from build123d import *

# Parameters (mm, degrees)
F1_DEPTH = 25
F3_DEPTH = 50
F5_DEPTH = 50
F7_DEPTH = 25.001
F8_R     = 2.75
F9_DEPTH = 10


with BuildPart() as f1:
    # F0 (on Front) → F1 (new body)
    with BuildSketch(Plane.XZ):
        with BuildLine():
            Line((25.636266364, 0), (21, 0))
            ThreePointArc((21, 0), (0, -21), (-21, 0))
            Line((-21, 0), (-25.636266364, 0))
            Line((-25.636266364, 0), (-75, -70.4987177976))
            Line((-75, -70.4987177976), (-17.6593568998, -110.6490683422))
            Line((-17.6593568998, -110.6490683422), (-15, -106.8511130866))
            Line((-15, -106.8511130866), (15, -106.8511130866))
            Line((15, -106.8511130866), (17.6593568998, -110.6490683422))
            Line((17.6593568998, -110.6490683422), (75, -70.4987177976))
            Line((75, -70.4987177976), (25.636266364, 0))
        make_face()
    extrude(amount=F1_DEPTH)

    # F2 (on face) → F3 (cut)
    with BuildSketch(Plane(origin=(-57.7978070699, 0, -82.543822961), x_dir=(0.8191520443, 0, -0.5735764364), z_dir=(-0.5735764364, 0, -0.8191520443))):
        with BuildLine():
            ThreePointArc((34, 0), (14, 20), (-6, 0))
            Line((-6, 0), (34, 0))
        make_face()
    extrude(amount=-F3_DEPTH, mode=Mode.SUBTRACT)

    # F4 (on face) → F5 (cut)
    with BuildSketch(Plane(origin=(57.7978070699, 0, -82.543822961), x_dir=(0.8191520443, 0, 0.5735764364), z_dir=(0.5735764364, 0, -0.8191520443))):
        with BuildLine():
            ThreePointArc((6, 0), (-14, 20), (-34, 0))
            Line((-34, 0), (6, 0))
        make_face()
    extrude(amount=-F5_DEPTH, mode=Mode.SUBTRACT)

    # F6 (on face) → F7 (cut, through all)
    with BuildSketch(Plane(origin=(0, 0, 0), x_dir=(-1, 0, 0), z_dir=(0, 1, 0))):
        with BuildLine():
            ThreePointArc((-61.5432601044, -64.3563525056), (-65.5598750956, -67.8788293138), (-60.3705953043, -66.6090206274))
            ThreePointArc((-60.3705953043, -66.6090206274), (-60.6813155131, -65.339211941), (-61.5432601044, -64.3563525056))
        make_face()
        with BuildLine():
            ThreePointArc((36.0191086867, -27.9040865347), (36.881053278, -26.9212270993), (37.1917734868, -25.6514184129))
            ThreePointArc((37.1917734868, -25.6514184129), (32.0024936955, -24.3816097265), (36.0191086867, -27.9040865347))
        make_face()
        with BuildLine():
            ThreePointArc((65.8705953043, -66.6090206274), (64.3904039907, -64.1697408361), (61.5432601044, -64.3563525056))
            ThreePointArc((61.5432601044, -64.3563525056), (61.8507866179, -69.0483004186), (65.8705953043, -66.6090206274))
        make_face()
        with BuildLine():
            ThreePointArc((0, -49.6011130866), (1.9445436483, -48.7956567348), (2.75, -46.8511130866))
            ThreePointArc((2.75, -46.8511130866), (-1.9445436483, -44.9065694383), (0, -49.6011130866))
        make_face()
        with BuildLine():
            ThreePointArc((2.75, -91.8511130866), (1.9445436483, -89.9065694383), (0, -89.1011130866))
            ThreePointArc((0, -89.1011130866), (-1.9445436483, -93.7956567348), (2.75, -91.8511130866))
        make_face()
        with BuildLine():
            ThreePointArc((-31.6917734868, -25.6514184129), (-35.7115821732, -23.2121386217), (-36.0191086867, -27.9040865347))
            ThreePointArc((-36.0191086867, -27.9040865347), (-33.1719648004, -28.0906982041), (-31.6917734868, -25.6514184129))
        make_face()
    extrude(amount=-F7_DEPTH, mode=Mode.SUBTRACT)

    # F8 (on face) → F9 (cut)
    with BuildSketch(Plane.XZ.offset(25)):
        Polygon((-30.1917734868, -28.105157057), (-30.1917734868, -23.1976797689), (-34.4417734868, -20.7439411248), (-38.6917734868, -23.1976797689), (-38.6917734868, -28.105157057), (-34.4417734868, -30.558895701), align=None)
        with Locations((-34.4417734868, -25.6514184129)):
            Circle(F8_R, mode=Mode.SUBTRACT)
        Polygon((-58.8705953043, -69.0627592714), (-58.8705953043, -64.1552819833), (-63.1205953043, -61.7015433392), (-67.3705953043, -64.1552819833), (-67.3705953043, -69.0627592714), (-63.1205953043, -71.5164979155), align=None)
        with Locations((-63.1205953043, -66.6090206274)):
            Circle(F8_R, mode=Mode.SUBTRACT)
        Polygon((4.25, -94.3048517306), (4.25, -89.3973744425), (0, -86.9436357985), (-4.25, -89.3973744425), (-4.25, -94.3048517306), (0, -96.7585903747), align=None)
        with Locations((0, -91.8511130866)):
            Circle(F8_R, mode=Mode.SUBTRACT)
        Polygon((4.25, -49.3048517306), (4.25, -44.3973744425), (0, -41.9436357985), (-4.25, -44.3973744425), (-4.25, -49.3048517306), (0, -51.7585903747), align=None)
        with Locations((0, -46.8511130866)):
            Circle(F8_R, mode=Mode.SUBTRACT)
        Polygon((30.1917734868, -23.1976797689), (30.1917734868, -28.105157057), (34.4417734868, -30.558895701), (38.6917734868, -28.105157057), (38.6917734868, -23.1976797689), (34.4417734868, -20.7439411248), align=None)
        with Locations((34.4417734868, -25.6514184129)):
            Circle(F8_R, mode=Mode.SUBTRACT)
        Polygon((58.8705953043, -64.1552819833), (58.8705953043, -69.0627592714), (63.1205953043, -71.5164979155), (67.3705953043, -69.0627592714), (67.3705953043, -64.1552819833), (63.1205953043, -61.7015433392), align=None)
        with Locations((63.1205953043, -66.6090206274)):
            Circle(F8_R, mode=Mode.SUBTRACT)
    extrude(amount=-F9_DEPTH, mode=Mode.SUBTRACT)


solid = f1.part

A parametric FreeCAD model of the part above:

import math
import FreeCAD as App
import Part
import Sketcher

V = App.Vector
Q = App.Units.Quantity

doc = App.newDocument("Part")
body = doc.addObject("PartDesign::Body", "Body")

# Sketch on XZ plane
sketch1 = body.newObject("Sketcher::SketchObject", "Sketch")
sketch1.AttachmentSupport = (doc.getObject("XZ_Plane"), [""])
sketch1.MapMode = "FlatFace"
sketch1.addGeometry(Part.LineSegment(V(25.636266, 0, 0), V(21, 0, 0)), False)
sketch1.addGeometry(Part.ArcOfCircle(Part.Circle(V(0, 0, 0), V(0, 0, 1), 21), math.radians(180), math.radians(360)), False)
sketch1.addGeometry(Part.LineSegment(V(-21, 0, 0), V(-25.636266, 0, 0)), False)
sketch1.addGeometry(Part.LineSegment(V(-25.636266, 0, 0), V(-75, -70.498718, 0)), False)
sketch1.addGeometry(Part.LineSegment(V(-75, -70.498718, 0), V(-17.659357, -110.649068, 0)), False)
sketch1.addGeometry(Part.LineSegment(V(-17.659357, -110.649068, 0), V(-15, -106.851113, 0)), False)
sketch1.addGeometry(Part.LineSegment(V(-15, -106.851113, 0), V(15, -106.851113, 0)), False)
sketch1.addGeometry(Part.LineSegment(V(15, -106.851113, 0), V(17.659357, -110.649068, 0)), False)
sketch1.addGeometry(Part.LineSegment(V(17.659357, -110.649068, 0), V(75, -70.498718, 0)), False)
sketch1.addGeometry(Part.LineSegment(V(75, -70.498718, 0), V(25.636266, 0, 0)), False)
sketch1.addConstraint(Sketcher.Constraint("Coincident", 0, 2, 1, 2))
sketch1.addConstraint(Sketcher.Constraint("Coincident", 1, 1, 2, 1))
sketch1.addConstraint(Sketcher.Constraint("Coincident", 2, 2, 3, 1))
sketch1.addConstraint(Sketcher.Constraint("Coincident", 3, 2, 4, 1))
sketch1.addConstraint(Sketcher.Constraint("Coincident", 4, 2, 5, 1))
sketch1.addConstraint(Sketcher.Constraint("Coincident", 5, 2, 6, 1))
sketch1.addConstraint(Sketcher.Constraint("Coincident", 6, 2, 7, 1))
sketch1.addConstraint(Sketcher.Constraint("Coincident", 7, 2, 8, 1))
sketch1.addConstraint(Sketcher.Constraint("Coincident", 8, 2, 9, 1))
sketch1.addConstraint(Sketcher.Constraint("Coincident", 9, 2, 0, 1))
sketch1.addConstraint(Sketcher.Constraint("Horizontal", 0))
sketch1.addConstraint(Sketcher.Constraint("Horizontal", 2))
sketch1.addConstraint(Sketcher.Constraint("Horizontal", 6))
sketch1.addConstraint(Sketcher.Constraint("Coincident", 1, 3, -1, 1))
sketch1.addConstraint(Sketcher.Constraint("Symmetric", 2, 2, 9, 2, -1, 1))
sketch1.addConstraint(Sketcher.Constraint("Symmetric", 4, 2, 7, 2, -2))
sketch1.addConstraint(Sketcher.Constraint("Symmetric", 3, 2, 8, 2, -2))
sketch1.addConstraint(Sketcher.Constraint("PointOnObject", 0, 2, -1))
sketch1.addConstraint(Sketcher.Constraint("Perpendicular", 3, 4))
sketch1.addConstraint(Sketcher.Constraint("Perpendicular", 4, 5))
sketch1.addConstraint(Sketcher.Constraint("Perpendicular", 7, 8))
sketch1.addConstraint(Sketcher.Constraint("Radius", 1, 21.0))
sketch1.addConstraint(Sketcher.Constraint("DistanceX", 6, 1, 6, 2, 30.0))
sketch1.addConstraint(Sketcher.Constraint("Angle", 3, Q("-125 deg")))
sketch1.addConstraint(Sketcher.Constraint("Distance", 4, 70.0))
sketch1.addConstraint(Sketcher.Constraint("DistanceX", 3, 2, -1, 1, 75.0))
sketch1.addConstraint(Sketcher.Constraint("DistanceX", 0, 2, 0, 1, 4.636266))
pad1 = body.newObject("PartDesign::Pad", "Pad")
pad1.Profile = sketch1
pad1.Length = 25

# Sketch on an angled plane
sketch2 = body.newObject("Sketcher::SketchObject", "Sketch001")
sketch2.Placement = App.Placement(V(-57.797807, 0, -82.543823), App.Rotation(V(0.819152044, 0, -0.573576436), V(0, -0.999999999, 0), V(-0.573576436, 0, -0.819152044), "ZXY"))
sketch2.addGeometry(Part.ArcOfCircle(Part.Circle(V(14, 0, 0), V(0, 0, 1), 20), math.radians(0), math.radians(180)), False)
sketch2.addGeometry(Part.LineSegment(V(-6, 0, 0), V(34, 0, 0)), False)
sketch2.addConstraint(Sketcher.Constraint("Coincident", 0, 1, 1, 2))
sketch2.addConstraint(Sketcher.Constraint("Coincident", 1, 1, 0, 2))
sketch2.addConstraint(Sketcher.Constraint("Horizontal", 1))
sketch2.addConstraint(Sketcher.Constraint("PointOnObject", 0, 3, -1))
sketch2.addConstraint(Sketcher.Constraint("PointOnObject", 0, 1, -1))
sketch2.addConstraint(Sketcher.Constraint("Radius", 0, 20.0))
sketch2.addConstraint(Sketcher.Constraint("DistanceX", -1, 1, 0, 3, 14.0))
pocket1 = body.newObject("PartDesign::Pocket", "Pocket")
pocket1.Profile = sketch2
pocket1.Length = 50

# Sketch on an angled plane
sketch3 = body.newObject("Sketcher::SketchObject", "Sketch002")
sketch3.Placement = App.Placement(V(57.797807, 0, -82.543823), App.Rotation(V(0.819152044, 0, 0.573576436), V(0, -0.999999999, 0), V(0.573576436, 0, -0.819152044), "ZXY"))
sketch3.addGeometry(Part.ArcOfCircle(Part.Circle(V(-14, 0, 0), V(0, 0, 1), 20), math.radians(0), math.radians(180)), False)
sketch3.addGeometry(Part.LineSegment(V(-34, 0, 0), V(6, 0, 0)), False)
sketch3.addConstraint(Sketcher.Constraint("Coincident", 0, 1, 1, 2))
sketch3.addConstraint(Sketcher.Constraint("Coincident", 1, 1, 0, 2))
sketch3.addConstraint(Sketcher.Constraint("Horizontal", 1))
sketch3.addConstraint(Sketcher.Constraint("PointOnObject", 0, 3, -1))
sketch3.addConstraint(Sketcher.Constraint("PointOnObject", 0, 1, -1))
sketch3.addConstraint(Sketcher.Constraint("Radius", 0, 20.0))
sketch3.addConstraint(Sketcher.Constraint("DistanceX", 0, 3, -1, 1, 14.0))
pocket2 = body.newObject("PartDesign::Pocket", "Pocket001")
pocket2.Profile = sketch3
pocket2.Length = 50

# Sketch on XZ plane
sketch4 = body.newObject("Sketcher::SketchObject", "Sketch003")
sketch4.AttachmentSupport = (doc.getObject("XZ_Plane"), [""])
sketch4.MapMode = "FlatFace"
sketch4.addGeometry(Part.ArcOfCircle(Part.Circle(V(63.120595, -66.609021, 0), V(0, 0, 1), 2.75), math.radians(180), math.radians(485)), False)
sketch4.addGeometry(Part.ArcOfCircle(Part.Circle(V(63.120595, -66.609021, 0), V(0, 0, 1), 2.75), math.radians(125), math.radians(180)), False)
sketch4.addGeometry(Part.ArcOfCircle(Part.Circle(V(-34.441773, -25.651418, 0), V(0, 0, 1), 2.75), math.radians(180), math.radians(235)), False)
sketch4.addGeometry(Part.ArcOfCircle(Part.Circle(V(-34.441773, -25.651418, 0), V(0, 0, 1), 2.75), math.radians(-125), math.radians(180)), False)
sketch4.addGeometry(Part.ArcOfCircle(Part.Circle(V(-63.120595, -66.609021, 0), V(0, 0, 1), 2.75), math.radians(55), math.radians(180)), False)
sketch4.addGeometry(Part.ArcOfCircle(Part.Circle(V(-63.120595, -66.609021, 0), V(0, 0, 1), 2.75), math.radians(180), math.radians(415)), False)
sketch4.addGeometry(Part.ArcOfCircle(Part.Circle(V(0, -46.851113, 0), V(0, 0, 1), 2.75), math.radians(180), math.radians(270)), False)
sketch4.addGeometry(Part.ArcOfCircle(Part.Circle(V(0, -46.851113, 0), V(0, 0, 1), 2.75), math.radians(-90), math.radians(180)), False)
sketch4.addGeometry(Part.ArcOfCircle(Part.Circle(V(0, -91.851113, 0), V(0, 0, 1), 2.75), math.radians(90), math.radians(180)), False)
sketch4.addGeometry(Part.ArcOfCircle(Part.Circle(V(0, -91.851113, 0), V(0, 0, 1), 2.75), math.radians(180), math.radians(450)), False)
sketch4.addGeometry(Part.ArcOfCircle(Part.Circle(V(34.441773, -25.651418, 0), V(0, 0, 1), 2.75), math.radians(-55), math.radians(180)), False)
sketch4.addGeometry(Part.ArcOfCircle(Part.Circle(V(34.441773, -25.651418, 0), V(0, 0, 1), 2.75), math.radians(180), math.radians(305)), False)
sketch4.addConstraint(Sketcher.Constraint("Tangent", 0, 1, 1, 2))
sketch4.addConstraint(Sketcher.Constraint("Coincident", 1, 1, 0, 2))
sketch4.addConstraint(Sketcher.Constraint("Tangent", 2, 1, 3, 2))
sketch4.addConstraint(Sketcher.Constraint("Coincident", 3, 1, 2, 2))
sketch4.addConstraint(Sketcher.Constraint("Tangent", 4, 1, 5, 2))
sketch4.addConstraint(Sketcher.Constraint("Coincident", 5, 1, 4, 2))
sketch4.addConstraint(Sketcher.Constraint("Tangent", 6, 1, 7, 2))
sketch4.addConstraint(Sketcher.Constraint("Coincident", 7, 1, 6, 2))
sketch4.addConstraint(Sketcher.Constraint("Tangent", 8, 1, 9, 2))
sketch4.addConstraint(Sketcher.Constraint("Coincident", 9, 1, 8, 2))
sketch4.addConstraint(Sketcher.Constraint("Tangent", 10, 1, 11, 2))
sketch4.addConstraint(Sketcher.Constraint("Coincident", 11, 1, 10, 2))
sketch4.addConstraint(Sketcher.Constraint("Equal", 1, 2))
sketch4.addConstraint(Sketcher.Constraint("Equal", 3, 4))
sketch4.addConstraint(Sketcher.Constraint("Equal", 5, 6))
sketch4.addConstraint(Sketcher.Constraint("Equal", 7, 8))
sketch4.addConstraint(Sketcher.Constraint("Equal", 9, 10))
sketch4.addConstraint(Sketcher.Constraint("Symmetric", 0, 3, 4, 3, -2))
sketch4.addConstraint(Sketcher.Constraint("Symmetric", 2, 3, 10, 3, -2))
sketch4.addConstraint(Sketcher.Constraint("PointOnObject", 6, 3, -2))
sketch4.addConstraint(Sketcher.Constraint("PointOnObject", 8, 3, -2))
sketch4.addConstraint(Sketcher.Constraint("PointOnObject", 7, 1, -2))
sketch4.addConstraint(Sketcher.Constraint("PointOnObject", 8, 1, -2))
sketch4.addConstraint(Sketcher.Constraint("Horizontal", 5, 3, 0, 1))
sketch4.addConstraint(Sketcher.Constraint("Horizontal", 11, 3, 2, 1))
sketch4.addConstraint(Sketcher.Constraint("Horizontal", 1, 1, 4, 1))
sketch4.addConstraint(Sketcher.Constraint("Horizontal", 0, 1, 5, 1))
sketch4.addConstraint(Sketcher.Constraint("Horizontal", 7, 3, 6, 1))
sketch4.addConstraint(Sketcher.Constraint("Horizontal", 8, 3, 9, 1))
sketch4.addConstraint(Sketcher.Constraint("Horizontal", 3, 1, 10, 1))
sketch4.addConstraint(Sketcher.Constraint("Horizontal", 2, 1, 11, 1))
sketch4.addConstraint(Sketcher.Constraint("Radius", 0, 2.75))
sketch4.addConstraint(Sketcher.Constraint("DistanceY", 8, 3, 6, 3, 45.0))
sketch4.addConstraint(Sketcher.Constraint("DistanceY", 0, 3, -1, 1, 66.609021))
sketch4.addConstraint(Sketcher.Constraint("DistanceY", 2, 3, -1, 1, 25.651418))
sketch4.addConstraint(Sketcher.Constraint("DistanceX", -1, 1, 1, 1, 61.54326))
sketch4.addConstraint(Sketcher.Constraint("DistanceX", 3, 1, -1, 1, 36.019109))
sketch4.addConstraint(Sketcher.Constraint("DistanceX", 2, 3, 0, 3, 97.562369))
sketch4.addConstraint(Sketcher.Constraint("DistanceX", 4, 3, 2, 3, 28.678822))
sketch4.addConstraint(Sketcher.Constraint("DistanceY", 6, 3, -1, 1, 46.851113))
pocket3 = body.newObject("PartDesign::Pocket", "Pocket002")
pocket3.Profile = sketch4
pocket3.Type = "ThroughAll"
pocket3.Reversed = True

# Sketch on XZ plane
sketch5 = body.newObject("Sketcher::SketchObject", "Sketch004")
sketch5.AttachmentSupport = (doc.getObject("XZ_Plane"), [""])
sketch5.MapMode = "FlatFace"
sketch5.AttachmentOffset = App.Placement(V(0, 0, 25), App.Rotation())
sketch5.addGeometry(Part.LineSegment(V(-30.191773, -28.105157, 0), V(-30.191773, -23.19768, 0)), False)
sketch5.addGeometry(Part.LineSegment(V(-30.191773, -23.19768, 0), V(-34.441773, -20.743941, 0)), False)
sketch5.addGeometry(Part.LineSegment(V(-34.441773, -20.743941, 0), V(-38.691773, -23.19768, 0)), False)
sketch5.addGeometry(Part.LineSegment(V(-38.691773, -23.19768, 0), V(-38.691773, -28.105157, 0)), False)
sketch5.addGeometry(Part.LineSegment(V(-38.691773, -28.105157, 0), V(-34.441773, -30.558896, 0)), False)
sketch5.addGeometry(Part.LineSegment(V(-34.441773, -30.558896, 0), V(-30.191773, -28.105157, 0)), False)
sketch5.addGeometry(Part.Circle(V(-34.441773, -25.651418, 0), V(0, 0, 1), 2.75), False)
sketch5.addGeometry(Part.LineSegment(V(-58.870595, -69.062759, 0), V(-58.870595, -64.155282, 0)), False)
sketch5.addGeometry(Part.LineSegment(V(-58.870595, -64.155282, 0), V(-63.120595, -61.701543, 0)), False)
sketch5.addGeometry(Part.LineSegment(V(-63.120595, -61.701543, 0), V(-67.370595, -64.155282, 0)), False)
sketch5.addGeometry(Part.LineSegment(V(-67.370595, -64.155282, 0), V(-67.370595, -69.062759, 0)), False)
sketch5.addGeometry(Part.LineSegment(V(-67.370595, -69.062759, 0), V(-63.120595, -71.516498, 0)), False)
sketch5.addGeometry(Part.LineSegment(V(-63.120595, -71.516498, 0), V(-58.870595, -69.062759, 0)), False)
sketch5.addGeometry(Part.Circle(V(-63.120595, -66.609021, 0), V(0, 0, 1), 2.75), False)
sketch5.addGeometry(Part.LineSegment(V(4.25, -94.304852, 0), V(4.25, -89.397374, 0)), False)
sketch5.addGeometry(Part.LineSegment(V(4.25, -89.397374, 0), V(0, -86.943636, 0)), False)
sketch5.addGeometry(Part.LineSegment(V(0, -86.943636, 0), V(-4.25, -89.397374, 0)), False)
sketch5.addGeometry(Part.LineSegment(V(-4.25, -89.397374, 0), V(-4.25, -94.304852, 0)), False)
sketch5.addGeometry(Part.LineSegment(V(-4.25, -94.304852, 0), V(0, -96.75859, 0)), False)
sketch5.addGeometry(Part.LineSegment(V(0, -96.75859, 0), V(4.25, -94.304852, 0)), False)
sketch5.addGeometry(Part.Circle(V(0, -91.851113, 0), V(0, 0, 1), 2.75), False)
sketch5.addGeometry(Part.LineSegment(V(4.25, -49.304852, 0), V(4.25, -44.397374, 0)), False)
sketch5.addGeometry(Part.LineSegment(V(4.25, -44.397374, 0), V(0, -41.943636, 0)), False)
sketch5.addGeometry(Part.LineSegment(V(0, -41.943636, 0), V(-4.25, -44.397374, 0)), False)
sketch5.addGeometry(Part.LineSegment(V(-4.25, -44.397374, 0), V(-4.25, -49.304852, 0)), False)
sketch5.addGeometry(Part.LineSegment(V(-4.25, -49.304852, 0), V(0, -51.75859, 0)), False)
sketch5.addGeometry(Part.LineSegment(V(0, -51.75859, 0), V(4.25, -49.304852, 0)), False)
sketch5.addGeometry(Part.Circle(V(0, -46.851113, 0), V(0, 0, 1), 2.75), False)
sketch5.addGeometry(Part.LineSegment(V(30.191773, -23.19768, 0), V(30.191773, -28.105157, 0)), False)
sketch5.addGeometry(Part.LineSegment(V(30.191773, -28.105157, 0), V(34.441773, -30.558896, 0)), False)
sketch5.addGeometry(Part.LineSegment(V(34.441773, -30.558896, 0), V(38.691773, -28.105157, 0)), False)
sketch5.addGeometry(Part.LineSegment(V(38.691773, -28.105157, 0), V(38.691773, -23.19768, 0)), False)
sketch5.addGeometry(Part.LineSegment(V(38.691773, -23.19768, 0), V(34.441773, -20.743941, 0)), False)
sketch5.addGeometry(Part.LineSegment(V(34.441773, -20.743941, 0), V(30.191773, -23.19768, 0)), False)
sketch5.addGeometry(Part.Circle(V(34.441773, -25.651418, 0), V(0, 0, 1), 2.75), False)
sketch5.addGeometry(Part.LineSegment(V(58.870595, -64.155282, 0), V(58.870595, -69.062759, 0)), False)
sketch5.addGeometry(Part.LineSegment(V(58.870595, -69.062759, 0), V(63.120595, -71.516498, 0)), False)
sketch5.addGeometry(Part.LineSegment(V(63.120595, -71.516498, 0), V(67.370595, -69.062759, 0)), False)
sketch5.addGeometry(Part.LineSegment(V(67.370595, -69.062759, 0), V(67.370595, -64.155282, 0)), False)
sketch5.addGeometry(Part.LineSegment(V(67.370595, -64.155282, 0), V(63.120595, -61.701543, 0)), False)
sketch5.addGeometry(Part.LineSegment(V(63.120595, -61.701543, 0), V(58.870595, -64.155282, 0)), False)
sketch5.addGeometry(Part.Circle(V(63.120595, -66.609021, 0), V(0, 0, 1), 2.75), False)
sketch5.addConstraint(Sketcher.Constraint("Coincident", 0, 2, 1, 1))
sketch5.addConstraint(Sketcher.Constraint("Coincident", 1, 2, 2, 1))
sketch5.addConstraint(Sketcher.Constraint("Coincident", 2, 2, 3, 1))
sketch5.addConstraint(Sketcher.Constraint("Coincident", 3, 2, 4, 1))
sketch5.addConstraint(Sketcher.Constraint("Coincident", 4, 2, 5, 1))
sketch5.addConstraint(Sketcher.Constraint("Coincident", 5, 2, 0, 1))
sketch5.addConstraint(Sketcher.Constraint("Coincident", 7, 2, 8, 1))
sketch5.addConstraint(Sketcher.Constraint("Coincident", 8, 2, 9, 1))
sketch5.addConstraint(Sketcher.Constraint("Coincident", 9, 2, 10, 1))
sketch5.addConstraint(Sketcher.Constraint("Coincident", 10, 2, 11, 1))
sketch5.addConstraint(Sketcher.Constraint("Coincident", 11, 2, 12, 1))
sketch5.addConstraint(Sketcher.Constraint("Coincident", 12, 2, 7, 1))
sketch5.addConstraint(Sketcher.Constraint("Coincident", 14, 2, 15, 1))
sketch5.addConstraint(Sketcher.Constraint("Coincident", 15, 2, 16, 1))
sketch5.addConstraint(Sketcher.Constraint("Coincident", 16, 2, 17, 1))
sketch5.addConstraint(Sketcher.Constraint("Coincident", 17, 2, 18, 1))
sketch5.addConstraint(Sketcher.Constraint("Coincident", 18, 2, 19, 1))
sketch5.addConstraint(Sketcher.Constraint("Coincident", 19, 2, 14, 1))
sketch5.addConstraint(Sketcher.Constraint("Coincident", 21, 2, 22, 1))
sketch5.addConstraint(Sketcher.Constraint("Coincident", 22, 2, 23, 1))
sketch5.addConstraint(Sketcher.Constraint("Coincident", 23, 2, 24, 1))
sketch5.addConstraint(Sketcher.Constraint("Coincident", 24, 2, 25, 1))
sketch5.addConstraint(Sketcher.Constraint("Coincident", 25, 2, 26, 1))
sketch5.addConstraint(Sketcher.Constraint("Coincident", 26, 2, 21, 1))
sketch5.addConstraint(Sketcher.Constraint("Coincident", 28, 2, 29, 1))
sketch5.addConstraint(Sketcher.Constraint("Coincident", 29, 2, 30, 1))
sketch5.addConstraint(Sketcher.Constraint("Coincident", 30, 2, 31, 1))
sketch5.addConstraint(Sketcher.Constraint("Coincident", 31, 2, 32, 1))
sketch5.addConstraint(Sketcher.Constraint("Coincident", 32, 2, 33, 1))
sketch5.addConstraint(Sketcher.Constraint("Coincident", 33, 2, 28, 1))
sketch5.addConstraint(Sketcher.Constraint("Coincident", 35, 2, 36, 1))
sketch5.addConstraint(Sketcher.Constraint("Coincident", 36, 2, 37, 1))
sketch5.addConstraint(Sketcher.Constraint("Coincident", 37, 2, 38, 1))
sketch5.addConstraint(Sketcher.Constraint("Coincident", 38, 2, 39, 1))
sketch5.addConstraint(Sketcher.Constraint("Coincident", 39, 2, 40, 1))
sketch5.addConstraint(Sketcher.Constraint("Coincident", 40, 2, 35, 1))
sketch5.addConstraint(Sketcher.Constraint("Vertical", 0))
sketch5.addConstraint(Sketcher.Constraint("Vertical", 3))
sketch5.addConstraint(Sketcher.Constraint("Vertical", 7))
sketch5.addConstraint(Sketcher.Constraint("Vertical", 10))
sketch5.addConstraint(Sketcher.Constraint("Vertical", 14))
sketch5.addConstraint(Sketcher.Constraint("Vertical", 17))
sketch5.addConstraint(Sketcher.Constraint("Vertical", 21))
sketch5.addConstraint(Sketcher.Constraint("Vertical", 24))
sketch5.addConstraint(Sketcher.Constraint("Vertical", 28))
sketch5.addConstraint(Sketcher.Constraint("Vertical", 31))
sketch5.addConstraint(Sketcher.Constraint("Vertical", 35))
sketch5.addConstraint(Sketcher.Constraint("Vertical", 38))
sketch5.addConstraint(Sketcher.Constraint("Equal", 6, 13))
sketch5.addConstraint(Sketcher.Constraint("Equal", 13, 20))
sketch5.addConstraint(Sketcher.Constraint("Equal", 20, 27))
sketch5.addConstraint(Sketcher.Constraint("Equal", 27, 34))
sketch5.addConstraint(Sketcher.Constraint("Equal", 34, 41))
sketch5.addConstraint(Sketcher.Constraint("Symmetric", 6, 3, 34, 3, -2))
sketch5.addConstraint(Sketcher.Constraint("Symmetric", 13, 3, 41, 3, -2))
sketch5.addConstraint(Sketcher.Constraint("Symmetric", 14, 2, 16, 2, -2))
sketch5.addConstraint(Sketcher.Constraint("Symmetric", 21, 2, 23, 2, -2))
sketch5.addConstraint(Sketcher.Constraint("Symmetric", 5, 2, 28, 2, -2))
sketch5.addConstraint(Sketcher.Constraint("Symmetric", 4, 2, 29, 2, -2))
sketch5.addConstraint(Sketcher.Constraint("Symmetric", 3, 2, 30, 2, -2))
sketch5.addConstraint(Sketcher.Constraint("Symmetric", 1, 2, 32, 2, -2))
sketch5.addConstraint(Sketcher.Constraint("Symmetric", 12, 2, 35, 2, -2))
sketch5.addConstraint(Sketcher.Constraint("Symmetric", 11, 2, 36, 2, -2))
sketch5.addConstraint(Sketcher.Constraint("Symmetric", 10, 2, 37, 2, -2))
sketch5.addConstraint(Sketcher.Constraint("Symmetric", 8, 2, 39, 2, -2))
sketch5.addConstraint(Sketcher.Constraint("PointOnObject", 20, 3, -2))
sketch5.addConstraint(Sketcher.Constraint("PointOnObject", 27, 3, -2))
sketch5.addConstraint(Sketcher.Constraint("PointOnObject", 15, 2, -2))
sketch5.addConstraint(Sketcher.Constraint("PointOnObject", 18, 2, -2))
sketch5.addConstraint(Sketcher.Constraint("PointOnObject", 22, 2, -2))
sketch5.addConstraint(Sketcher.Constraint("PointOnObject", 25, 2, -2))
sketch5.addConstraint(Sketcher.Constraint("Parallel", 1, 4))
sketch5.addConstraint(Sketcher.Constraint("Parallel", 2, 5))
sketch5.addConstraint(Sketcher.Constraint("Parallel", 4, 8))
sketch5.addConstraint(Sketcher.Constraint("Parallel", 5, 9))
sketch5.addConstraint(Sketcher.Constraint("Parallel", 8, 11))
sketch5.addConstraint(Sketcher.Constraint("Parallel", 9, 12))
sketch5.addConstraint(Sketcher.Constraint("Parallel", 11, 15))
sketch5.addConstraint(Sketcher.Constraint("Parallel", 12, 16))
sketch5.addConstraint(Sketcher.Constraint("Parallel", 15, 18))
sketch5.addConstraint(Sketcher.Constraint("Parallel", 16, 19))
sketch5.addConstraint(Sketcher.Constraint("Parallel", 18, 22))
sketch5.addConstraint(Sketcher.Constraint("Parallel", 22, 25))
sketch5.addConstraint(Sketcher.Constraint("Parallel", 23, 26))
sketch5.addConstraint(Sketcher.Constraint("Parallel", 29, 32))
sketch5.addConstraint(Sketcher.Constraint("Parallel", 30, 33))
sketch5.addConstraint(Sketcher.Constraint("Parallel", 36, 39))
sketch5.addConstraint(Sketcher.Constraint("Parallel", 37, 40))
sketch5.addConstraint(Sketcher.Constraint("Horizontal", 0, 2, 2, 2))
sketch5.addConstraint(Sketcher.Constraint("Horizontal", 3, 2, 5, 2))
sketch5.addConstraint(Sketcher.Constraint("Horizontal", 7, 2, 9, 2))
sketch5.addConstraint(Sketcher.Constraint("Horizontal", 10, 2, 12, 2))
sketch5.addConstraint(Sketcher.Constraint("Vertical", 6, 3, 1, 2))
sketch5.addConstraint(Sketcher.Constraint("Vertical", 13, 3, 8, 2))
sketch5.addConstraint(Sketcher.Constraint("Vertical", 19, 2, 21, 2))
sketch5.addConstraint(Sketcher.Constraint("Equal", 3, 7))
sketch5.addConstraint(Sketcher.Constraint("Equal", 10, 14))
sketch5.addConstraint(Sketcher.Constraint("Equal", 17, 21))
sketch5.addConstraint(Sketcher.Constraint("Equal", 5, 8))
sketch5.addConstraint(Sketcher.Constraint("Equal", 12, 15))
sketch5.addConstraint(Sketcher.Constraint("Diameter", 6, 5.5))
sketch5.addConstraint(Sketcher.Constraint("Angle", 1, Q("150 deg")))
sketch5.addConstraint(Sketcher.Constraint("DistanceY", 20, 3, 27, 3, 45.0))
sketch5.addConstraint(Sketcher.Constraint("DistanceX", 2, 2, 0, 2, 8.5))
sketch5.addConstraint(Sketcher.Constraint("DistanceY", 0, 1, 0, 2, 4.907477))
sketch5.addConstraint(Sketcher.Constraint("DistanceY", 6, 3, -1, 1, 25.651418))
sketch5.addConstraint(Sketcher.Constraint("DistanceY", 13, 3, -1, 1, 66.609021))
sketch5.addConstraint(Sketcher.Constraint("DistanceY", 0, 2, -1, 1, 23.19768))
sketch5.addConstraint(Sketcher.Constraint("DistanceY", 7, 2, -1, 1, 64.155282))
sketch5.addConstraint(Sketcher.Constraint("DistanceY", 17, 2, -1, 1, 94.304852))
sketch5.addConstraint(Sketcher.Constraint("DistanceY", 24, 2, -1, 1, 49.304852))
sketch5.addConstraint(Sketcher.Constraint("DistanceX", 13, 3, 6, 3, 28.678822))
sketch5.addConstraint(Sketcher.Constraint("DistanceX", 13, 3, 34, 3, 97.562369))
sketch5.addConstraint(Sketcher.Constraint("DistanceY", 27, 3, 1, 2, 26.107172))
pocket4 = body.newObject("PartDesign::Pocket", "Pocket003")
pocket4.Profile = sketch5
pocket4.Length = 10

doc.recompute()
